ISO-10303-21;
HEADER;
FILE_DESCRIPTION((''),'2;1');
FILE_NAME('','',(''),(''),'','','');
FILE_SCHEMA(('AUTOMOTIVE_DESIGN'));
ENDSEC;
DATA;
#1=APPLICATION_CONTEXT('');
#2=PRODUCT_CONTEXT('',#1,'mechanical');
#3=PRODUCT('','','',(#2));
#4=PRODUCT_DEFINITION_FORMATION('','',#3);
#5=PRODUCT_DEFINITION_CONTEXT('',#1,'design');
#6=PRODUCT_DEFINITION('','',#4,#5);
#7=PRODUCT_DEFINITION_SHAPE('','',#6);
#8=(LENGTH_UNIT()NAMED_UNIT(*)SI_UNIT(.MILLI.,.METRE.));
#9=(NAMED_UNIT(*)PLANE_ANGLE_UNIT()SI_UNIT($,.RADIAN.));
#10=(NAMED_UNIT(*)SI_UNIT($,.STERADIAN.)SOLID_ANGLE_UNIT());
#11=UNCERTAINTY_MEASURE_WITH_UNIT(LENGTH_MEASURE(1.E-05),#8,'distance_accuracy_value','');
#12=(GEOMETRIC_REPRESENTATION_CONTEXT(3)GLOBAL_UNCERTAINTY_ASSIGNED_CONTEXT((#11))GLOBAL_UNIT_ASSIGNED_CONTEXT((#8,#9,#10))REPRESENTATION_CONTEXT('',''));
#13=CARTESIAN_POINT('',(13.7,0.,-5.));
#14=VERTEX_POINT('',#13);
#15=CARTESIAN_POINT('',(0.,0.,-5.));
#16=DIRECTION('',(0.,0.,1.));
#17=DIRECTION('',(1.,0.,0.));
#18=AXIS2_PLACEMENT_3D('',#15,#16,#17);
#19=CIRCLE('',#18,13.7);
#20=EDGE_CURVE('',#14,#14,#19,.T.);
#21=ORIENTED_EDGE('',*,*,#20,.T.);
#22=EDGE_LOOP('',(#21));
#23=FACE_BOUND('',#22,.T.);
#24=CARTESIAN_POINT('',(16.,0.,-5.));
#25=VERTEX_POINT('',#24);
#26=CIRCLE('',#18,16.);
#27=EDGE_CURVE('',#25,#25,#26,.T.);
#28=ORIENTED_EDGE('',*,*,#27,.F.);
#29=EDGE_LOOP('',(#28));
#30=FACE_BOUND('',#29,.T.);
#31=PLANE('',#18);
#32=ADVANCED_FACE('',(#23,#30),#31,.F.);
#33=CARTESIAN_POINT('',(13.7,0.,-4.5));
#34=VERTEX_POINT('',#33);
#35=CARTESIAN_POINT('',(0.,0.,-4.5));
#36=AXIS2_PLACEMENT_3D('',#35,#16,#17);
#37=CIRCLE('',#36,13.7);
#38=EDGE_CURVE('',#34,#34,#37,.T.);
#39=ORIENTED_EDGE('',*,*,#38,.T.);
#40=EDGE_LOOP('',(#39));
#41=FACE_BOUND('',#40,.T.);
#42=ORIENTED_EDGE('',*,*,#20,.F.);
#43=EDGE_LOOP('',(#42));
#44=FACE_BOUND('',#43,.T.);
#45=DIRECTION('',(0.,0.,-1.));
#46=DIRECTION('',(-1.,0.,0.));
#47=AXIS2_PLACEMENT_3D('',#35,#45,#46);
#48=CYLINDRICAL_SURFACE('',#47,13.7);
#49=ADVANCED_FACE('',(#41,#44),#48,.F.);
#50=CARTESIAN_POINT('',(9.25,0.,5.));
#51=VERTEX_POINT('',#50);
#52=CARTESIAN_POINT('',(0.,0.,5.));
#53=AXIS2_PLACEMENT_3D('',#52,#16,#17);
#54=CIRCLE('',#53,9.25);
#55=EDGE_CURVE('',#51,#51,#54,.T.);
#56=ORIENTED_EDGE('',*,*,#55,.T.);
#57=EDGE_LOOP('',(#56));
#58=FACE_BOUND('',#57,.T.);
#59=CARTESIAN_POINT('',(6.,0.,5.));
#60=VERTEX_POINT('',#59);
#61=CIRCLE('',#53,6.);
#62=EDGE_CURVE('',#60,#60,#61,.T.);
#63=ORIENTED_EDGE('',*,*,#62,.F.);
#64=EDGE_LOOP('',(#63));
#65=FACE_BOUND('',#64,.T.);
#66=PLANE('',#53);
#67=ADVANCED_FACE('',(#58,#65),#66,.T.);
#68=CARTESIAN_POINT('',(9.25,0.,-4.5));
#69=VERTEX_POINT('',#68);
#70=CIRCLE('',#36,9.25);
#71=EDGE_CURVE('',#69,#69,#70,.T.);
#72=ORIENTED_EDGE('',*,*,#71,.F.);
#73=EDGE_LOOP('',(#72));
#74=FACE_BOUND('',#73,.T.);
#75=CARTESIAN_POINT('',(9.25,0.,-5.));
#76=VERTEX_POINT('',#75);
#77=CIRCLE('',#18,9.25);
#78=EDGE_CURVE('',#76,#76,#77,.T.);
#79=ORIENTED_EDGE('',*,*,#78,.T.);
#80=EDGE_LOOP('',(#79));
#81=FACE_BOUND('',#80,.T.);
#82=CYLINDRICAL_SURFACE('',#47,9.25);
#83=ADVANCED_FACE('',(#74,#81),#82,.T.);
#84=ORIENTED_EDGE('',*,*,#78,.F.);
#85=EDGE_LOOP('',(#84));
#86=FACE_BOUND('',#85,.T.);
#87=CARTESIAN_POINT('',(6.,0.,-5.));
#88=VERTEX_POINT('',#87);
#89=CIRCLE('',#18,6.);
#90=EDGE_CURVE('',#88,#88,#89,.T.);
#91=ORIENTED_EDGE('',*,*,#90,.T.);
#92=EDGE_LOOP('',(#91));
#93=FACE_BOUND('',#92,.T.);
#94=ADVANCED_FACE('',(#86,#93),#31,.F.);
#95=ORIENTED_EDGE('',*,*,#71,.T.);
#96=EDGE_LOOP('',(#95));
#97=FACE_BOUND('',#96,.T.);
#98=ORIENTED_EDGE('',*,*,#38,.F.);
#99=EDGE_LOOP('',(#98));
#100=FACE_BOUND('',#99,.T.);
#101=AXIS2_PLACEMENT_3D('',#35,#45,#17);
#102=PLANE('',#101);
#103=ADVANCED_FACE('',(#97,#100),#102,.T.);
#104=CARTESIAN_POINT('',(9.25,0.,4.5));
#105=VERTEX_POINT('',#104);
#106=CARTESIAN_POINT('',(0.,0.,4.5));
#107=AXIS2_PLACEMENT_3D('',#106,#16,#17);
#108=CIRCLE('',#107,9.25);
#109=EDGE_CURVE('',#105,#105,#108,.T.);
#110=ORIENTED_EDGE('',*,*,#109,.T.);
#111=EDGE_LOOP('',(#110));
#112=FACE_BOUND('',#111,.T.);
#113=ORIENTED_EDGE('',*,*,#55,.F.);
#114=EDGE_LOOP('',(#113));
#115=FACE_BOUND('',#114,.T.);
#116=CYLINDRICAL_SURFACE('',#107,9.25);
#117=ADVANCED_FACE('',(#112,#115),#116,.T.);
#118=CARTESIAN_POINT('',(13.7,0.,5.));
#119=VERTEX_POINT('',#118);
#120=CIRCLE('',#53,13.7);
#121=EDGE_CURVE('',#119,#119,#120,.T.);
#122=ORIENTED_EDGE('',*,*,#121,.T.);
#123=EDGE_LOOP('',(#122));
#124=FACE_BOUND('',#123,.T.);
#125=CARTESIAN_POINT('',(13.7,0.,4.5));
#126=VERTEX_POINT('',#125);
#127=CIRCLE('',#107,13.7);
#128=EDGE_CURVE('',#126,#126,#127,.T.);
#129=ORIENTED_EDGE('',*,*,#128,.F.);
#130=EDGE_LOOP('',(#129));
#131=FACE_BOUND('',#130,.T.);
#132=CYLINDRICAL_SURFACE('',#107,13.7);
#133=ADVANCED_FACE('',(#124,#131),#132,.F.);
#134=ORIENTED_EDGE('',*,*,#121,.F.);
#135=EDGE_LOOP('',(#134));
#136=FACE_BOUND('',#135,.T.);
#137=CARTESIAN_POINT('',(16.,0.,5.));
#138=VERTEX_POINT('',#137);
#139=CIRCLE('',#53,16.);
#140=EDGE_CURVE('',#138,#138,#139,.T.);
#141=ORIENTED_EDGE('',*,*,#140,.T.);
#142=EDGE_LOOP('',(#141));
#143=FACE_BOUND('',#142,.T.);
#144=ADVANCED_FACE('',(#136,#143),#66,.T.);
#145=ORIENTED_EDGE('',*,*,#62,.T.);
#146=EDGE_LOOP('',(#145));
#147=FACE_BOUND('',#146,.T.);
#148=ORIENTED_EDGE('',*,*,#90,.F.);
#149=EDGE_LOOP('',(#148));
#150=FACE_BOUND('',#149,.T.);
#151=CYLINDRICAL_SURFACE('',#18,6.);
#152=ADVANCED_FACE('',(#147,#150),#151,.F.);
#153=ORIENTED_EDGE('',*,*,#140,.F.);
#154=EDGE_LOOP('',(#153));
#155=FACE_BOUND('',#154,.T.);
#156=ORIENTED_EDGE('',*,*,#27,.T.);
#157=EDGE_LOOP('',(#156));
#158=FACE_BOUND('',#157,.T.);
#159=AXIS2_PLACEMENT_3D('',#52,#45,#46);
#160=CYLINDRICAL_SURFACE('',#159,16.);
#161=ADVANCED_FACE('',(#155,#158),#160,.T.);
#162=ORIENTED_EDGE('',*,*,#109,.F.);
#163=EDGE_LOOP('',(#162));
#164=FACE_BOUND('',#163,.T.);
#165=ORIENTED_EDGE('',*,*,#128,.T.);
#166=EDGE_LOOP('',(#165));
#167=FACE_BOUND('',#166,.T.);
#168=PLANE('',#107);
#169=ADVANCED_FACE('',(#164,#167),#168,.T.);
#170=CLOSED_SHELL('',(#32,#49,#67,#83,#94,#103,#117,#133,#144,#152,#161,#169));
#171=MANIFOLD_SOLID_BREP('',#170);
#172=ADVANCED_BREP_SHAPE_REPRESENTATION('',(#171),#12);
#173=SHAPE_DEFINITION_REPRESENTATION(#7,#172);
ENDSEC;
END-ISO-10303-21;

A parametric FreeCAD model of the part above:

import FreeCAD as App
import Part
import Sketcher
Q = App.Units.Quantity

doc = App.newDocument("Part")
body = doc.addObject("PartDesign::Body", "Body")

# Sketch on XY plane
sketch1 = doc.addObject("Sketcher::SketchObject", "Sketch")
body.addObject(sketch1)
sketch1.AttachmentSupport = (doc.XY_Plane, [""])
sketch1.MapMode = "FlatFace"
sketch1.addGeometry(Part.Circle(App.Vector(0, 0, 0), App.Vector(0, 0, 1), 16), False)
sketch1.addConstraint(Sketcher.Constraint("Coincident", 0, 3, -1, 1))
sketch1.addConstraint(Sketcher.Constraint("Diameter", 0, Q("32 mm")))
pad1 = doc.addObject("PartDesign::Pad", "Pad")
body.addObject(pad1)
pad1.Profile = sketch1
pad1.Length = 10
pad1.Midplane = True

# Sketch on XY plane
sketch2 = doc.addObject("Sketcher::SketchObject", "Sketch001")
body.addObject(sketch2)
sketch2.AttachmentSupport = (doc.XY_Plane, [""])
sketch2.MapMode = "FlatFace"
sketch2.AttachmentOffset = App.Placement(App.Vector(0, 0, 5), App.Rotation())
sketch2.addGeometry(Part.Circle(App.Vector(0, 0, 0), App.Vector(0, 0, 1), 6), False)
sketch2.addConstraint(Sketcher.Constraint("Coincident", 0, 3, -1, 1))
sketch2.addConstraint(Sketcher.Constraint("Diameter", 0, Q("12 mm")))
pocket1 = doc.addObject("PartDesign::Pocket", "Pocket")
body.addObject(pocket1)
pocket1.Profile = sketch2
pocket1.Type = "ThroughAll"

# Sketch on XY plane
sketch3 = doc.addObject("Sketcher::SketchObject", "Sketch002")
body.addObject(sketch3)
sketch3.AttachmentSupport = (doc.XY_Plane, [""])
sketch3.MapMode = "FlatFace"
sketch3.AttachmentOffset = App.Placement(App.Vector(0, 0, 5), App.Rotation())
sketch3.addGeometry(Part.Circle(App.Vector(0, 0, 0), App.Vector(0, 0, 1), 14), False)
sketch3.addGeometry(Part.Circle(App.Vector(0, 0, 0), App.Vector(0, 0, 1), 9), False)
sketch3.addConstraint(Sketcher.Constraint("Coincident", 0, 3, -1, 1))
sketch3.addConstraint(Sketcher.Constraint("Coincident", 1, 3, -1, 1))
sketch3.addConstraint(Sketcher.Constraint("Diameter", 0, Q("27.4 mm")))
sketch3.addConstraint(Sketcher.Constraint("Diameter", 1, Q("18.5 mm")))
pocket2 = doc.addObject("PartDesign::Pocket", "Pocket001")
body.addObject(pocket2)
pocket2.Profile = sketch3
pocket2.Length = 0.5
doc.recompute()

mirrored = doc.addObject("PartDesign::Mirrored", "Mirrored")
body.addObject(mirrored)
mirrored.Originals = [pocket2]
mirrored.MirrorPlane = (doc.XY_Plane, [""])
body.Tip = mirrored

doc.recompute()
